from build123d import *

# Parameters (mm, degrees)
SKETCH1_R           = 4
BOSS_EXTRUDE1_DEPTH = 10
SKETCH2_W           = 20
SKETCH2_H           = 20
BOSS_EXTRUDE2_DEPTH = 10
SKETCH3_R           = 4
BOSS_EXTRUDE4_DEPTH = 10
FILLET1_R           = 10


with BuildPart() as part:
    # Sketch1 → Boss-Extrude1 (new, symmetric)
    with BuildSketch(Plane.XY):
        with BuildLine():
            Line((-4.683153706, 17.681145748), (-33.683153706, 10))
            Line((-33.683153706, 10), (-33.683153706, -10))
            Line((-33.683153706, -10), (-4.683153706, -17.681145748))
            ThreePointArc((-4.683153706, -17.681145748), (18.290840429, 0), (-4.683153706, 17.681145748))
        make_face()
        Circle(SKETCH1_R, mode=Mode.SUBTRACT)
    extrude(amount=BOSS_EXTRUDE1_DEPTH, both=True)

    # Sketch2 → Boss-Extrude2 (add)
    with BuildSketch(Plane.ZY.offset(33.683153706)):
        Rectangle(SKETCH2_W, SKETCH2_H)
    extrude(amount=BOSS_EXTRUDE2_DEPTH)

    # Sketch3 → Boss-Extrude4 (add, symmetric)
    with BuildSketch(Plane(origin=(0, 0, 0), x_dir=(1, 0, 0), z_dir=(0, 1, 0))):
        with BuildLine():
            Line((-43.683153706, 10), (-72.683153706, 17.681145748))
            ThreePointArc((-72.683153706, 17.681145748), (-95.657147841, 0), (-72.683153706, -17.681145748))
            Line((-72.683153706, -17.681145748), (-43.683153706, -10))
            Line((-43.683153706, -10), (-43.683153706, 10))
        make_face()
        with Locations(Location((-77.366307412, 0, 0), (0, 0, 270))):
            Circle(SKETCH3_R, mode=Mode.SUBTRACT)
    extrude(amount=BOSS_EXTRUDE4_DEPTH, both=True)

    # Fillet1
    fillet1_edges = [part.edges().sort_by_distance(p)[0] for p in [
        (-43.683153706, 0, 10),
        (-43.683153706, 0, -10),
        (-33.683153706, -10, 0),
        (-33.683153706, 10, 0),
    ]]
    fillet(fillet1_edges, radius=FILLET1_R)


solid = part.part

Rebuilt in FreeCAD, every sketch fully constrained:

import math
import FreeCAD as App
import Part
import Sketcher


def edges_at(feature, points):
    """Names of the edges that pass closest to the given points."""
    edges = feature.Shape.Edges
    near = lambda p: min(range(len(edges)), key=lambda i: edges[i].distToShape(Part.Vertex(*p))[0])
    return sorted({f"Edge{near(p) + 1}" for p in points})

doc = App.newDocument("Part")
body = doc.addObject("PartDesign::Body", "Body")

# Sketch on XY plane
sketch1 = doc.addObject("Sketcher::SketchObject", "Sketch")
body.addObject(sketch1)
sketch1.AttachmentSupport = (doc.XY_Plane, [""])
sketch1.MapMode = "FlatFace"
sketch1.addGeometry(Part.LineSegment(App.Vector(-4.683154, 17.681146, 0), App.Vector(-33.683154, 10, 0)), False)
sketch1.addGeometry(Part.LineSegment(App.Vector(-33.683154, 10, 0), App.Vector(-33.683154, -10, 0)), False)
sketch1.addGeometry(Part.LineSegment(App.Vector(-33.683154, -10, 0), App.Vector(-4.683154, -17.681146, 0)), False)
sketch1.addGeometry(Part.ArcOfCircle(Part.Circle(App.Vector(0, 0, 0), App.Vector(0, 0, 1), 18.29084), math.radians(-104.835112), math.radians(104.835112)), False)
sketch1.addGeometry(Part.Circle(App.Vector(0, 0, 0), App.Vector(0, 0, 1), 4), False)
sketch1.addConstraint(Sketcher.Constraint("Coincident", 0, 2, 1, 1))
sketch1.addConstraint(Sketcher.Constraint("Coincident", 1, 2, 2, 1))
sketch1.addConstraint(Sketcher.Constraint("Tangent", 2, 2, 3, 1))
sketch1.addConstraint(Sketcher.Constraint("Tangent", 3, 2, 0, 1))
sketch1.addConstraint(Sketcher.Constraint("Vertical", 1))
sketch1.addConstraint(Sketcher.Constraint("Coincident", 3, 3, -1, 1))
sketch1.addConstraint(Sketcher.Constraint("Coincident", 4, 3, -1, 1))
sketch1.addConstraint(Sketcher.Constraint("Vertical", 2, 2, 3, 2))
sketch1.addConstraint(Sketcher.Constraint("Diameter", 4, 8.0))
sketch1.addConstraint(Sketcher.Constraint("DistanceY", 1, 2, 1, 1, 20.0))
sketch1.addConstraint(Sketcher.Constraint("Distance", 0, 30.0))
sketch1.addConstraint(Sketcher.Constraint("DistanceX", 1, 2, 2, 2, 29.0))
pad1 = doc.addObject("PartDesign::Pad", "Pad")
body.addObject(pad1)
pad1.Profile = sketch1
pad1.Length = 20
pad1.Midplane = True

# Sketch on YZ plane
sketch2 = doc.addObject("Sketcher::SketchObject", "Sketch001")
body.addObject(sketch2)
sketch2.AttachmentSupport = (doc.YZ_Plane, [""])
sketch2.MapMode = "FlatFace"
sketch2.AttachmentOffset = App.Placement(App.Vector(0, 0, -33.683154), App.Rotation())
sketch2.addGeometry(Part.LineSegment(App.Vector(10, -10, 0), App.Vector(-10, -10, 0)), False)
sketch2.addGeometry(Part.LineSegment(App.Vector(-10, -10, 0), App.Vector(-10, 10, 0)), False)
sketch2.addGeometry(Part.LineSegment(App.Vector(-10, 10, 0), App.Vector(10, 10, 0)), False)
sketch2.addGeometry(Part.LineSegment(App.Vector(10, 10, 0), App.Vector(10, -10, 0)), False)
sketch2.addConstraint(Sketcher.Constraint("Coincident", 0, 2, 1, 1))
sketch2.addConstraint(Sketcher.Constraint("Coincident", 1, 2, 2, 1))
sketch2.addConstraint(Sketcher.Constraint("Coincident", 2, 2, 3, 1))
sketch2.addConstraint(Sketcher.Constraint("Coincident", 3, 2, 0, 1))
sketch2.addConstraint(Sketcher.Constraint("Horizontal", 0))
sketch2.addConstraint(Sketcher.Constraint("Vertical", 1))
sketch2.addConstraint(Sketcher.Constraint("Horizontal", 2))
sketch2.addConstraint(Sketcher.Constraint("Vertical", 3))
sketch2.addConstraint(Sketcher.Constraint("Symmetric", 0, 2, 2, 2, -1, 1))
sketch2.addConstraint(Sketcher.Constraint("Equal", 2, 1))
sketch2.addConstraint(Sketcher.Constraint("DistanceX", 0, 2, 0, 1, 20.0))
pad2 = doc.addObject("PartDesign::Pad", "Pad001")
body.addObject(pad2)
pad2.Profile = sketch2
pad2.Length = 10
pad2.Reversed = True

# Sketch on XZ plane
sketch3 = doc.addObject("Sketcher::SketchObject", "Sketch002")
body.addObject(sketch3)
sketch3.AttachmentSupport = (doc.XZ_Plane, [""])
sketch3.MapMode = "FlatFace"
sketch3.addGeometry(Part.LineSegment(App.Vector(-43.683154, -10, 0), App.Vector(-72.683154, -17.681146, 0)), False)
sketch3.addGeometry(Part.ArcOfCircle(Part.Circle(App.Vector(-77.366307, 0, 0), App.Vector(0, 0, 1), 18.29084), math.radians(75.164888), math.radians(284.835112)), False)
sketch3.addGeometry(Part.LineSegment(App.Vector(-72.683154, 17.681146, 0), App.Vector(-43.683154, 10, 0)), False)
sketch3.addGeometry(Part.LineSegment(App.Vector(-43.683154, 10, 0), App.Vector(-43.683154, -10, 0)), False)
sketch3.addGeometry(Part.Circle(App.Vector(-77.366307, 0, 0), App.Vector(0, 0, 1), 4), False)
sketch3.addConstraint(Sketcher.Constraint("Tangent", 0, 2, 1, 2))
sketch3.addConstraint(Sketcher.Constraint("Tangent", 1, 1, 2, 1))
sketch3.addConstraint(Sketcher.Constraint("Coincident", 2, 2, 3, 1))
sketch3.addConstraint(Sketcher.Constraint("Coincident", 3, 2, 0, 1))
sketch3.addConstraint(Sketcher.Constraint("Vertical", 3))
sketch3.addConstraint(Sketcher.Constraint("Coincident", 4, 3, 1, 3))
sketch3.addConstraint(Sketcher.Constraint("Symmetric", 0, 2, 1, 1, -1))
sketch3.addConstraint(Sketcher.Constraint("Diameter", 4, 8.0))
sketch3.addConstraint(Sketcher.Constraint("DistanceY", 3, 2, 3, 1, 20.0))
sketch3.addConstraint(Sketcher.Constraint("Distance", 0, 30.0))
sketch3.addConstraint(Sketcher.Constraint("DistanceX", 1, 1, 2, 2, 29.0))
sketch3.addConstraint(Sketcher.Constraint("DistanceX", 1, 3, -1, 1, 77.366307))
pad3 = doc.addObject("PartDesign::Pad", "Pad002")
body.addObject(pad3)
pad3.Profile = sketch3
pad3.Length = 20
pad3.Midplane = True
doc.recompute()

fillet = doc.addObject("PartDesign::Fillet", "Fillet")
body.addObject(fillet)
fillet.Base = (pad3, edges_at(pad3, [
    (-43.683, 0, 10),
    (-43.683, 0, -10),
    (-33.683, -10, 0),
    (-33.683, 10, 0),
]))
fillet.Radius = 10

doc.recompute()
